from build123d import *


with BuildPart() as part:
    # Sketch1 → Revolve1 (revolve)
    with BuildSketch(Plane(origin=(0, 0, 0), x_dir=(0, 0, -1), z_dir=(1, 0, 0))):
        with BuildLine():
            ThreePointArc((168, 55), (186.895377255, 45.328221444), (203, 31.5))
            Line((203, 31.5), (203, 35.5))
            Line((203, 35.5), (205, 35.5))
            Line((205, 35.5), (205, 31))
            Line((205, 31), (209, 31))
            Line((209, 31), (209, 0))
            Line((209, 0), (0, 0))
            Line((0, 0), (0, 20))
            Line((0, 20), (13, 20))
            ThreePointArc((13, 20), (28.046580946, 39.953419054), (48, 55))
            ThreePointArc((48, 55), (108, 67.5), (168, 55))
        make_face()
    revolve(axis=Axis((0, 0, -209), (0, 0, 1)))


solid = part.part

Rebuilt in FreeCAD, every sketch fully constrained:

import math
import FreeCAD as App
import Part
import Sketcher
from FreeCAD import Vector
Q = App.Units.Quantity

doc = App.newDocument("Part")
body = doc.addObject("PartDesign::Body", "Body")

sketch1 = doc.addObject("Sketcher::SketchObject", "Sketch")
body.addObject(sketch1)
sketch1.AttachmentSupport = (doc.YZ_Plane, [""])
sketch1.MapMode = "FlatFace"
sketch1.addGeometry(Part.ArcOfCircle(Part.Circle(Vector(-29.39168, -136.7263, 0), Vector(0, 0, 1), 90), math.radians(-47.423482), math.radians(-20.333597)), False)
sketch1.addGeometry(Part.ArcOfCircle(Part.Circle(Vector(-82.75, -108, 0), Vector(0, 0, 1), 150.25), math.radians(-23.536578), math.radians(23.536578)), False)
sketch1.addGeometry(Part.ArcOfCircle(Part.Circle(Vector(-23.686191, -91.686191, 0), Vector(0, 0, 1), 90), math.radians(29.038822), math.radians(60.961178)), False)
sketch1.addGeometry(Part.LineSegment(Vector(20, -13, 0), Vector(20, 0, 0)), False)
sketch1.addGeometry(Part.LineSegment(Vector(20, 0, 0), Vector(0, 0, 0)), False)
sketch1.addGeometry(Part.LineSegment(Vector(0, 0, 0), Vector(0, -209, 0)), False)
sketch1.addGeometry(Part.LineSegment(Vector(0, -209, 0), Vector(31, -209, 0)), False)
sketch1.addGeometry(Part.LineSegment(Vector(31, -209, 0), Vector(31, -205, 0)), False)
sketch1.addGeometry(Part.LineSegment(Vector(31, -205, 0), Vector(35.5, -205, 0)), False)
sketch1.addGeometry(Part.LineSegment(Vector(35.5, -205, 0), Vector(35.5, -203, 0)), False)
sketch1.addGeometry(Part.LineSegment(Vector(35.5, -203, 0), Vector(31.5, -203, 0)), False)
sketch1.addConstraint(Sketcher.Constraint("Coincident", 0, 2, 1, 1))
sketch1.addConstraint(Sketcher.Constraint("Coincident", 1, 2, 2, 1))
sketch1.addConstraint(Sketcher.Constraint("Coincident", 2, 2, 3, 1))
sketch1.addConstraint(Sketcher.Constraint("Coincident", 3, 2, 4, 1))
sketch1.addConstraint(Sketcher.Constraint("Coincident", 4, 2, 5, 1))
sketch1.addConstraint(Sketcher.Constraint("Coincident", 5, 2, 6, 1))
sketch1.addConstraint(Sketcher.Constraint("Coincident", 6, 2, 7, 1))
sketch1.addConstraint(Sketcher.Constraint("Coincident", 7, 2, 8, 1))
sketch1.addConstraint(Sketcher.Constraint("Coincident", 8, 2, 9, 1))
sketch1.addConstraint(Sketcher.Constraint("Coincident", 9, 2, 10, 1))
sketch1.addConstraint(Sketcher.Constraint("Coincident", 10, 2, 0, 1))
sketch1.addConstraint(Sketcher.Constraint("Vertical", 3))
sketch1.addConstraint(Sketcher.Constraint("Horizontal", 4))
sketch1.addConstraint(Sketcher.Constraint("Vertical", 5))
sketch1.addConstraint(Sketcher.Constraint("Horizontal", 6))
sketch1.addConstraint(Sketcher.Constraint("Vertical", 7))
sketch1.addConstraint(Sketcher.Constraint("Horizontal", 8))
sketch1.addConstraint(Sketcher.Constraint("Vertical", 9))
sketch1.addConstraint(Sketcher.Constraint("Horizontal", 10))
sketch1.addConstraint(Sketcher.Constraint("Coincident", 4, 2, -1, 1))
sketch1.addConstraint(Sketcher.Constraint("Equal", 0, 2))
sketch1.addConstraint(Sketcher.Constraint("Vertical", 0, 2, 1, 2))
sketch1.addConstraint(Sketcher.Constraint("Equal", 10, 7))
sketch1.addConstraint(Sketcher.Constraint("Radius", 0, Q("90 mm")))
sketch1.addConstraint(Sketcher.Constraint("DistanceX", 4, 2, 4, 1, Q("20 mm")))
sketch1.addConstraint(Sketcher.Constraint("DistanceX", 6, 1, 6, 2, Q("31 mm")))
sketch1.addConstraint(Sketcher.Constraint("DistanceX", 10, 2, 10, 1, Q("4 mm")))
sketch1.addConstraint(Sketcher.Constraint("DistanceY", 3, 1, 3, 2, Q("13 mm")))
sketch1.addConstraint(Sketcher.Constraint("DistanceY", 5, 2, 5, 1, Q("209 mm")))
sketch1.addConstraint(Sketcher.Constraint("DistanceY", 9, 1, 9, 2, Q("2 mm")))
sketch1.addConstraint(Sketcher.Constraint("Radius", 1, Q("150.25 mm")))
sketch1.addConstraint(Sketcher.Constraint("DistanceX", 8, 1, 8, 2, Q("4.5 mm")))
sketch1.addConstraint(Sketcher.Constraint("DistanceY", 1, 3, -1, 1, Q("108 mm")))
sketch1.addConstraint(Sketcher.Constraint("DistanceX", -1, 1, 0, 2, Q("55 mm")))
sketch1.addConstraint(Sketcher.Constraint("DistanceY", 0, 2, -1, 1, Q("168 mm")))
revolution = doc.addObject("PartDesign::Revolution", "Revolution")
body.addObject(revolution)
revolution.Profile = sketch1
revolution.ReferenceAxis = (sketch1, ["V_Axis"])
revolution.Angle = 360

doc.recompute()
